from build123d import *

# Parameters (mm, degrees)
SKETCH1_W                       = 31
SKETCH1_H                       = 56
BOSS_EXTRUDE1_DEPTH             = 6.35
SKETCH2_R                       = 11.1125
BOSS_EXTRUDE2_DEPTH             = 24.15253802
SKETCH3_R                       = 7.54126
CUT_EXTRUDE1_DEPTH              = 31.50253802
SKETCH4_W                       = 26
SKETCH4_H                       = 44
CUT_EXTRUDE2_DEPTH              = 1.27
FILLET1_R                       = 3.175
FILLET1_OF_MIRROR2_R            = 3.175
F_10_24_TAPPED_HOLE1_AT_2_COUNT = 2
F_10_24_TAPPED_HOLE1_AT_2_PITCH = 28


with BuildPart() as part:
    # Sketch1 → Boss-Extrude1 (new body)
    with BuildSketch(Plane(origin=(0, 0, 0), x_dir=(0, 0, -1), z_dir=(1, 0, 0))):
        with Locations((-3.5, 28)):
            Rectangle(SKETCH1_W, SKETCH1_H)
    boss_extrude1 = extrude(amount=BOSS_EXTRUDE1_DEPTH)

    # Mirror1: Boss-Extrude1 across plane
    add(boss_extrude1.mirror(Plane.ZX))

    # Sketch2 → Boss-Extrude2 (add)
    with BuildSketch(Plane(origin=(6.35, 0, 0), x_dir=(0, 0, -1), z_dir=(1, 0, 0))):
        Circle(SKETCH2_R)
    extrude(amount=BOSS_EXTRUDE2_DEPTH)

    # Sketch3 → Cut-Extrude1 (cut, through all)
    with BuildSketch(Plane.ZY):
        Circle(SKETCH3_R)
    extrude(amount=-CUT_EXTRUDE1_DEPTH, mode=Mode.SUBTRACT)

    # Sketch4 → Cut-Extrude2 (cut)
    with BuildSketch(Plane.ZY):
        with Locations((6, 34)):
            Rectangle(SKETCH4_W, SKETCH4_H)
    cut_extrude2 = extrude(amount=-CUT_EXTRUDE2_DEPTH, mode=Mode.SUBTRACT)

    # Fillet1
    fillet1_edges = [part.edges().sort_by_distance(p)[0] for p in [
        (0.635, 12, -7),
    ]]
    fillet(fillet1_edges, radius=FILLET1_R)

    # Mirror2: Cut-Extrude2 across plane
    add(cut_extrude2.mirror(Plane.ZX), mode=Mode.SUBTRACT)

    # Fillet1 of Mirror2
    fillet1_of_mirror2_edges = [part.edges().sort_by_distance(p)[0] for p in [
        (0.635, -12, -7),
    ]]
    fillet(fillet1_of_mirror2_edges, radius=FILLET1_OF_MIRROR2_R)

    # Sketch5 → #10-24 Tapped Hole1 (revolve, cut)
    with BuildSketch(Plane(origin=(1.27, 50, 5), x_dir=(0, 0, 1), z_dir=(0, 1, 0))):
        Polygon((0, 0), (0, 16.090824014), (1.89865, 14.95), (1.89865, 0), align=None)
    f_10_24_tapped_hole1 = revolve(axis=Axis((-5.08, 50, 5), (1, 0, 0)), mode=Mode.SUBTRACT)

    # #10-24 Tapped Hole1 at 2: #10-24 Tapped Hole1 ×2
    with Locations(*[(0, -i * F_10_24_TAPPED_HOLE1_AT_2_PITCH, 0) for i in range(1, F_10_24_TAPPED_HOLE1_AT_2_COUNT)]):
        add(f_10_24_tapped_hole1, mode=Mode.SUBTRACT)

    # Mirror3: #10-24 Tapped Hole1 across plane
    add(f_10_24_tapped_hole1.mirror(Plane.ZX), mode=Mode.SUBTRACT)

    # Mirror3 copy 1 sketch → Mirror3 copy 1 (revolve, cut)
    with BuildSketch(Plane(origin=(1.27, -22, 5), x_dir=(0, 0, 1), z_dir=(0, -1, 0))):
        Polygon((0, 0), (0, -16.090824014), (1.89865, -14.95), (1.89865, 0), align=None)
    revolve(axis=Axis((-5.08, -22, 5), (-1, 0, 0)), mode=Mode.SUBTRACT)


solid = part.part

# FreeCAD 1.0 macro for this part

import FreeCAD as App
import Part
import Sketcher

V = App.Vector
Q = App.Units.Quantity


def edges_at(feature, points):
    """Names of the edges that pass closest to the given points."""
    edges = feature.Shape.Edges
    near = lambda p: min(range(len(edges)), key=lambda i: edges[i].distToShape(Part.Vertex(*p))[0])
    return sorted({f"Edge{near(p) + 1}" for p in points})


def add_polygon(sketch, points):
    """Adds a closed chain of lines whose ends are joined by coincident constraints."""
    first, n = sketch.GeometryCount, len(points)
    for a, b in zip(points, points[1:] + points[:1]):
        sketch.addGeometry(Part.LineSegment(App.Vector(*a, 0), App.Vector(*b, 0)), False)
    for i in range(n):
        sketch.addConstraint(Sketcher.Constraint("Coincident", first + i, 2, first + (i + 1) % n, 1))

doc = App.newDocument("Part")
body = doc.addObject("PartDesign::Body", "Body")

sketch1 = doc.addObject("Sketcher::SketchObject", "Sketch")
body.addObject(sketch1)
sketch1.AttachmentSupport = (doc.YZ_Plane, [""])
sketch1.MapMode = "FlatFace"
add_polygon(sketch1, [(56, 19), (0, 19), (0, -12), (56, -12)])
sketch1.addConstraint([
    Sketcher.Constraint("Horizontal", 0),
    Sketcher.Constraint("Vertical", 1),
    Sketcher.Constraint("Horizontal", 2),
    Sketcher.Constraint("Vertical", 3),
    Sketcher.Constraint("PointOnObject", 0, 2, -2),
    Sketcher.Constraint("DistanceX", 0, 2, 0, 1, 56.0),
    Sketcher.Constraint("DistanceY", 1, 2, 1, 1, 31.0),
    Sketcher.Constraint("DistanceY", -1, 1, 0, 2, 19.0),
])
pad1 = doc.addObject("PartDesign::Pad", "Pad")
body.addObject(pad1)
pad1.Profile = sketch1
pad1.Length = 6.35
doc.recompute()

mirrored = doc.addObject("PartDesign::Mirrored", "Mirrored")
body.addObject(mirrored)
mirrored.Originals = [pad1]
mirrored.MirrorPlane = (doc.XZ_Plane, [""])
body.Tip = mirrored

sketch2 = doc.addObject("Sketcher::SketchObject", "Sketch001")
body.addObject(sketch2)
sketch2.AttachmentSupport = (doc.YZ_Plane, [""])
sketch2.MapMode = "FlatFace"
sketch2.AttachmentOffset = App.Placement(V(0, 0, 6.35), App.Rotation())
sketch2.addGeometry(Part.Circle(V(0, 0, 0), V(0, 0, 1), 11.1125), False)
sketch2.addConstraint([
    Sketcher.Constraint("Coincident", 0, 3, -1, 1),
    Sketcher.Constraint("Diameter", 0, 22.225),
])
pad2 = doc.addObject("PartDesign::Pad", "Pad001")
body.addObject(pad2)
pad2.Profile = sketch2
pad2.Length = 24.152538

sketch3 = doc.addObject("Sketcher::SketchObject", "Sketch002")
body.addObject(sketch3)
sketch3.AttachmentSupport = (doc.YZ_Plane, [""])
sketch3.MapMode = "FlatFace"
sketch3.addGeometry(Part.Circle(V(0, 0, 0), V(0, 0, 1), 7.54126), False)
sketch3.addConstraint([
    Sketcher.Constraint("Coincident", 0, 3, -1, 1),
    Sketcher.Constraint("Diameter", 0, 15.08252),
])
pocket1 = doc.addObject("PartDesign::Pocket", "Pocket")
body.addObject(pocket1)
pocket1.Profile = sketch3
pocket1.Type = "ThroughAll"
pocket1.Reversed = True

sketch4 = doc.addObject("Sketcher::SketchObject", "Sketch003")
body.addObject(sketch4)
sketch4.AttachmentSupport = (doc.YZ_Plane, [""])
sketch4.MapMode = "FlatFace"
add_polygon(sketch4, [(56, -7), (12, -7), (12, 19), (56, 19)])
sketch4.addConstraint([
    Sketcher.Constraint("Horizontal", 0),
    Sketcher.Constraint("Vertical", 1),
    Sketcher.Constraint("Horizontal", 2),
    Sketcher.Constraint("Vertical", 3),
    Sketcher.Constraint("DistanceX", 0, 2, 0, 1, 44.0),
    Sketcher.Constraint("DistanceY", 1, 1, 1, 2, 26.0),
    Sketcher.Constraint("DistanceX", -1, 1, 0, 2, 12.0),
    Sketcher.Constraint("DistanceY", 0, 2, -1, 1, 7.0),
])
pocket2 = doc.addObject("PartDesign::Pocket", "Pocket001")
body.addObject(pocket2)
pocket2.Profile = sketch4
pocket2.Length = 1.27
pocket2.Reversed = True
doc.recompute()

fillet = doc.addObject("PartDesign::Fillet", "Fillet")
body.addObject(fillet)
fillet.Base = (pocket2, edges_at(pocket2, [(0.635, 12, -7)]))
fillet.Radius = 3.175
doc.recompute()

mirrored2 = doc.addObject("PartDesign::Mirrored", "Mirrored001")
body.addObject(mirrored2)
mirrored2.Originals = [pocket2]
mirrored2.MirrorPlane = (doc.XZ_Plane, [""])
body.Tip = mirrored2
doc.recompute()

fillet2 = doc.addObject("PartDesign::Fillet", "Fillet001")
body.addObject(fillet2)
fillet2.Base = (mirrored2, edges_at(mirrored2, [(0.635, -12, -7)]))
fillet2.Radius = 3.175

sketch5 = doc.addObject("Sketcher::SketchObject", "Sketch004")
body.addObject(sketch5)
sketch5.AttachmentSupport = (doc.XZ_Plane, [""])
sketch5.MapMode = "FlatFace"
sketch5.AttachmentOffset = App.Placement(V(0, 0, -50), App.Rotation())
add_polygon(sketch5, [(17.360824, 5), (1.27, 5), (1.27, 6.89865), (16.22, 6.89865)])
sketch5.addGeometry(Part.LineSegment(V(1.27, 5, 0), V(17.360824, 5, 0)), True)
sketch5.addConstraint([
    Sketcher.Constraint("Horizontal", 0),
    Sketcher.Constraint("Vertical", 1),
    Sketcher.Constraint("Horizontal", 2),
    Sketcher.Constraint("Horizontal", 4),
    Sketcher.Constraint("Coincident", 4, 1, 0, 2),
    Sketcher.Constraint("Equal", 0, 4),
    Sketcher.Constraint("Angle", 3, Q("-59 deg")),
    Sketcher.Constraint("DistanceY", -1, 1, 0, 2, 5.0),
    Sketcher.Constraint("DistanceX", 2, 1, 2, 2, 14.95),
    Sketcher.Constraint("DistanceX", -1, 1, 0, 2, 1.27),
    Sketcher.Constraint("DistanceY", 1, 1, 1, 2, 1.89865),
])
groove = doc.addObject("PartDesign::Groove", "Groove")
body.addObject(groove)
groove.Profile = sketch5
groove.ReferenceAxis = (sketch5, ["Axis0"])
groove.Angle = 360
doc.recompute()

linearpattern = doc.addObject("PartDesign::LinearPattern", "LinearPattern")
body.addObject(linearpattern)
linearpattern.Originals = [groove]
linearpattern.Direction = (doc.Y_Axis, [""])
linearpattern.Mode = "offset"
linearpattern.Offset = 28
linearpattern.Occurrences = 2
linearpattern.Reversed = True
body.Tip = linearpattern
doc.recompute()

mirrored3 = doc.addObject("PartDesign::Mirrored", "Mirrored002")
body.addObject(mirrored3)
mirrored3.Originals = [groove]
mirrored3.MirrorPlane = (doc.XZ_Plane, [""])
body.Tip = mirrored3

sketch6 = doc.addObject("Sketcher::SketchObject", "Sketch005")
body.addObject(sketch6)
sketch6.AttachmentSupport = (doc.XZ_Plane, [""])
sketch6.MapMode = "FlatFace"
sketch6.AttachmentOffset = App.Placement(V(0, 0, 22), App.Rotation())
add_polygon(sketch6, [(1.27, 5), (17.360824, 5), (16.22, 6.89865), (1.27, 6.89865)])
sketch6.addGeometry(Part.LineSegment(V(17.360824, 5, 0), V(1.27, 5, 0)), True)
sketch6.addConstraint([
    Sketcher.Constraint("Horizontal", 0),
    Sketcher.Constraint("Horizontal", 2),
    Sketcher.Constraint("Vertical", 3),
    Sketcher.Constraint("Horizontal", 4),
    Sketcher.Constraint("Coincident", 4, 1, 0, 2),
    Sketcher.Constraint("Vertical", 2, 2, 4, 2),
    Sketcher.Constraint("Angle", 1, Q("121 deg")),
    Sketcher.Constraint("DistanceY", -1, 1, 0, 2, 5.0),
    Sketcher.Constraint("DistanceX", 2, 2, 2, 1, 14.95),
    Sketcher.Constraint("DistanceX", -1, 1, 1, 2, 16.22),
    Sketcher.Constraint("DistanceY", 3, 2, 3, 1, 1.89865),
])
groove2 = doc.addObject("PartDesign::Groove", "Groove001")
body.addObject(groove2)
groove2.Profile = sketch6
groove2.ReferenceAxis = (sketch6, ["Axis0"])
groove2.Angle = 360

doc.recompute()
